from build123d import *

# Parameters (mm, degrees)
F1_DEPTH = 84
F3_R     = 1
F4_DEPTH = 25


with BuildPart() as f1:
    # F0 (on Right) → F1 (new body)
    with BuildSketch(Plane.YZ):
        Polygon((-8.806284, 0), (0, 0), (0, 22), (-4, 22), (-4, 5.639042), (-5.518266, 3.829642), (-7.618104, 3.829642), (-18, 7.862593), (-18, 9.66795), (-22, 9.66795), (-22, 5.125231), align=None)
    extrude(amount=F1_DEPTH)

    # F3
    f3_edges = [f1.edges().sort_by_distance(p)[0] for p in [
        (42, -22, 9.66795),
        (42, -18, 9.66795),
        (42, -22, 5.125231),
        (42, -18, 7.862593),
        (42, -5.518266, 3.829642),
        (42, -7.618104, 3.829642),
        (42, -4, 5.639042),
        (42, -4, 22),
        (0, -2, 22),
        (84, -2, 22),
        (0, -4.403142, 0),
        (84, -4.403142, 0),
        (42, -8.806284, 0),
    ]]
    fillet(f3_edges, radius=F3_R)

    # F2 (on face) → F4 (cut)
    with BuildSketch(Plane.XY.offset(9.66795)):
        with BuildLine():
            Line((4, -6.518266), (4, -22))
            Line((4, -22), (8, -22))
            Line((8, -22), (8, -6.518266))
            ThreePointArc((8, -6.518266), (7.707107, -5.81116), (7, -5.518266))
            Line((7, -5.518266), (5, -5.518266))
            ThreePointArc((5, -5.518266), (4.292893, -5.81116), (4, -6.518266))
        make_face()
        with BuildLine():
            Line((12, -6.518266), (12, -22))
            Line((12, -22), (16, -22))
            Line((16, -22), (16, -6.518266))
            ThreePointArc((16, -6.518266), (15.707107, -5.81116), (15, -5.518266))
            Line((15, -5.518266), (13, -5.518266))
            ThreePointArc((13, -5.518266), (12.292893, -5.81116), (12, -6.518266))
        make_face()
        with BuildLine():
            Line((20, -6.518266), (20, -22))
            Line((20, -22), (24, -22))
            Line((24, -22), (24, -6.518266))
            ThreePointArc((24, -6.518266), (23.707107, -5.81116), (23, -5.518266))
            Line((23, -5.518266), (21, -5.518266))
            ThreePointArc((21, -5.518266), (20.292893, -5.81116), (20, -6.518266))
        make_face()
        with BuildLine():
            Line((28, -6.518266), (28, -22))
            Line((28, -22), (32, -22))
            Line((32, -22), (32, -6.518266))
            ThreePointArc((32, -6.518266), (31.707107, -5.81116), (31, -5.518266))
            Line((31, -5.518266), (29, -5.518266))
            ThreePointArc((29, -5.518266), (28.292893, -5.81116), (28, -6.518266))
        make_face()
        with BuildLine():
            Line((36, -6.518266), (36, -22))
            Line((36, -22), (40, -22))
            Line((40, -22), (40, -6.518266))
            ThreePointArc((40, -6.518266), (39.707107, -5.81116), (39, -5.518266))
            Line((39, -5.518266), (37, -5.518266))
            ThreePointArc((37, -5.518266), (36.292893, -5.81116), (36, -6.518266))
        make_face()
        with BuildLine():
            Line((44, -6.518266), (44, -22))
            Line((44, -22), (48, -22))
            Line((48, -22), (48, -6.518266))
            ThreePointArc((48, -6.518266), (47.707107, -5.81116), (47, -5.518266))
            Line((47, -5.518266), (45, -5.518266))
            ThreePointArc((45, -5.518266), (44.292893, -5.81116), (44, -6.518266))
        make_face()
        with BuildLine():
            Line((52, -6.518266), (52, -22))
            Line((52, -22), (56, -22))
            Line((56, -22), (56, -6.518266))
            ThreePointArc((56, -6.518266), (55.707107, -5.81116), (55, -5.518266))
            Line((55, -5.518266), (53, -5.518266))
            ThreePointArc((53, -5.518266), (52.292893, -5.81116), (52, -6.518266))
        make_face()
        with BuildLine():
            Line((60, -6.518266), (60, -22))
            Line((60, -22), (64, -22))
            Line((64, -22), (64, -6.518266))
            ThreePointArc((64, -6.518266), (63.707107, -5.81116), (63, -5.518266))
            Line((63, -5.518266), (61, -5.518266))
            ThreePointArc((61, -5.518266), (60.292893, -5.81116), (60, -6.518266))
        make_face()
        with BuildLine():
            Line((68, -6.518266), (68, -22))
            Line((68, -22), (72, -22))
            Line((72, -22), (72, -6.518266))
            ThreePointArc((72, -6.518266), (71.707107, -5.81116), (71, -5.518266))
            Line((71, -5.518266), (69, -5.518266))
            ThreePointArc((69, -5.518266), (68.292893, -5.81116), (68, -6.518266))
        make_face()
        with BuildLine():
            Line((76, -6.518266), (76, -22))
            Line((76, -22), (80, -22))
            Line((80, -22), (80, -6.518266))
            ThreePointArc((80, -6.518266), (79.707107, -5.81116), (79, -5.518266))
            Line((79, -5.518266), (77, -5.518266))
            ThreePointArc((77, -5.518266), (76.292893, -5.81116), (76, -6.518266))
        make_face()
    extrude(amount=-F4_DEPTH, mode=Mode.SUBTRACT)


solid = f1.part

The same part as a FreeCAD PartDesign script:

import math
import FreeCAD as App
import Part
import Sketcher
from FreeCAD import Vector
Q = App.Units.Quantity


def edges_at(feature, points):
    """Names of the edges that pass closest to the given points."""
    edges = feature.Shape.Edges
    near = lambda p: min(range(len(edges)), key=lambda i: edges[i].distToShape(Part.Vertex(*p))[0])
    return sorted({f"Edge{near(p) + 1}" for p in points})

doc = App.newDocument("Part")
body = doc.addObject("PartDesign::Body", "Body")

sketch1 = body.newObject("Sketcher::SketchObject", "Sketch")
sketch1.AttachmentSupport = (doc.getObject("YZ_Plane"), [""])
sketch1.MapMode = "FlatFace"
sketch1.addGeometry([
    Part.LineSegment(Vector(-8.8, 0, 0), Vector(0, 0, 0)),
    Part.LineSegment(Vector(0, 0, 0), Vector(0, 22, 0)),
    Part.LineSegment(Vector(0, 22, 0), Vector(-4, 22, 0)),
    Part.LineSegment(Vector(-4, 22, 0), Vector(-4, 5.6, 0)),
    Part.LineSegment(Vector(-4, 5.6, 0), Vector(-5.5, 3.8, 0)),
    Part.LineSegment(Vector(-5.5, 3.8, 0), Vector(-7.6, 3.8, 0)),
    Part.LineSegment(Vector(-7.6, 3.8, 0), Vector(-18, 7.9, 0)),
    Part.LineSegment(Vector(-18, 7.9, 0), Vector(-18, 9.7, 0)),
    Part.LineSegment(Vector(-18, 9.7, 0), Vector(-22, 9.7, 0)),
    Part.LineSegment(Vector(-22, 9.7, 0), Vector(-22, 5.1, 0)),
    Part.LineSegment(Vector(-22, 5.1, 0), Vector(-8.8, 0, 0)),
], False)
sketch1.addConstraint([
    Sketcher.Constraint("Coincident", 0, 2, 1, 1),
    Sketcher.Constraint("Coincident", 1, 2, 2, 1),
    Sketcher.Constraint("Coincident", 2, 2, 3, 1),
    Sketcher.Constraint("Coincident", 3, 2, 4, 1),
    Sketcher.Constraint("Coincident", 4, 2, 5, 1),
    Sketcher.Constraint("Coincident", 5, 2, 6, 1),
    Sketcher.Constraint("Coincident", 6, 2, 7, 1),
    Sketcher.Constraint("Coincident", 7, 2, 8, 1),
    Sketcher.Constraint("Coincident", 8, 2, 9, 1),
    Sketcher.Constraint("Coincident", 9, 2, 10, 1),
    Sketcher.Constraint("Coincident", 10, 2, 0, 1),
    Sketcher.Constraint("Horizontal", 0),
    Sketcher.Constraint("Vertical", 1),
    Sketcher.Constraint("Horizontal", 2),
    Sketcher.Constraint("Vertical", 3),
    Sketcher.Constraint("Horizontal", 5),
    Sketcher.Constraint("Vertical", 7),
    Sketcher.Constraint("Horizontal", 8),
    Sketcher.Constraint("Vertical", 9),
    Sketcher.Constraint("Coincident", 0, 2, -1, 1),
    Sketcher.Constraint("Parallel", 6, 10),
    Sketcher.Constraint("Equal", 2, 8),
    Sketcher.Constraint("DistanceX", 2, 2, 2, 1, Q("4 mm")),
    Sketcher.Constraint("DistanceY", 1, 1, 1, 2, Q("22 mm")),
    Sketcher.Constraint("Angle", 4, Q("-129.999984 deg")),
    Sketcher.Constraint("DistanceX", 6, 2, -1, 1, Q("18 mm")),
    Sketcher.Constraint("DistanceX", 5, 2, 5, 1, Q("2.099838 mm")),
    Sketcher.Constraint("DistanceY", 3, 2, 3, 1, Q("16.360958 mm")),
    Sketcher.Constraint("DistanceY", 9, 2, 9, 1, Q("4.542719 mm")),
    Sketcher.Constraint("DistanceY", 4, 2, 3, 2, Q("1.8094 mm")),
    Sketcher.Constraint("DistanceX", 0, 1, 0, 2, Q("8.806284 mm")),
    Sketcher.Constraint("DistanceY", 7, 1, 7, 2, Q("1.805357 mm")),
])
pad1 = body.newObject("PartDesign::Pad", "Pad")
pad1.Profile = sketch1
pad1.Length = 84
doc.recompute()

fillet = body.newObject("PartDesign::Fillet", "Fillet")
fillet.Base = (pad1, edges_at(pad1, [
    (42, -22, 9.668),
    (42, -18, 9.668),
    (42, -22, 5.125),
    (42, -18, 7.863),
    (42, -5.518, 3.83),
    (42, -7.618, 3.83),
    (42, -4, 5.639),
    (42, -4, 22),
    (0, -2, 22),
    (84, -2, 22),
    (0, -4.403, 0),
    (84, -4.403, 0),
    (42, -8.806, 0),
]))
fillet.Radius = 1

sketch2 = body.newObject("Sketcher::SketchObject", "Sketch001")
sketch2.AttachmentSupport = (doc.getObject("XY_Plane"), [""])
sketch2.MapMode = "FlatFace"
sketch2.AttachmentOffset = App.Placement(Vector(0, 0, 9.66795), App.Rotation())
sketch2.addGeometry([
    Part.LineSegment(Vector(4, -6.5, 0), Vector(4, -22, 0)),
    Part.LineSegment(Vector(4, -22, 0), Vector(8, -22, 0)),
    Part.LineSegment(Vector(8, -22, 0), Vector(8, -6.5, 0)),
    Part.ArcOfCircle(Part.Circle(Vector(7, -6.5, 0), Vector(0, 0, 1), 1), math.radians(0), math.radians(90)),
    Part.LineSegment(Vector(7, -5.5, 0), Vector(5, -5.5, 0)),
    Part.ArcOfCircle(Part.Circle(Vector(5, -6.5, 0), Vector(0, 0, 1), 1), math.radians(90), math.radians(180)),
    Part.LineSegment(Vector(12, -6.5, 0), Vector(12, -22, 0)),
    Part.LineSegment(Vector(12, -22, 0), Vector(16, -22, 0)),
    Part.LineSegment(Vector(16, -22, 0), Vector(16, -6.5, 0)),
    Part.ArcOfCircle(Part.Circle(Vector(15, -6.5, 0), Vector(0, 0, 1), 1), math.radians(0), math.radians(90)),
    Part.LineSegment(Vector(15, -5.5, 0), Vector(13, -5.5, 0)),
    Part.ArcOfCircle(Part.Circle(Vector(13, -6.5, 0), Vector(0, 0, 1), 1), math.radians(90), math.radians(180)),
    Part.LineSegment(Vector(20, -6.5, 0), Vector(20, -22, 0)),
    Part.LineSegment(Vector(20, -22, 0), Vector(24, -22, 0)),
    Part.LineSegment(Vector(24, -22, 0), Vector(24, -6.5, 0)),
    Part.ArcOfCircle(Part.Circle(Vector(23, -6.5, 0), Vector(0, 0, 1), 1), math.radians(0), math.radians(90)),
    Part.LineSegment(Vector(23, -5.5, 0), Vector(21, -5.5, 0)),
    Part.ArcOfCircle(Part.Circle(Vector(21, -6.5, 0), Vector(0, 0, 1), 1), math.radians(90), math.radians(180)),
    Part.LineSegment(Vector(28, -6.5, 0), Vector(28, -22, 0)),
    Part.LineSegment(Vector(28, -22, 0), Vector(32, -22, 0)),
    Part.LineSegment(Vector(32, -22, 0), Vector(32, -6.5, 0)),
    Part.ArcOfCircle(Part.Circle(Vector(31, -6.5, 0), Vector(0, 0, 1), 1), math.radians(0), math.radians(90)),
    Part.LineSegment(Vector(31, -5.5, 0), Vector(29, -5.5, 0)),
    Part.ArcOfCircle(Part.Circle(Vector(29, -6.5, 0), Vector(0, 0, 1), 1), math.radians(90), math.radians(180)),
    Part.LineSegment(Vector(36, -6.5, 0), Vector(36, -22, 0)),
    Part.LineSegment(Vector(36, -22, 0), Vector(40, -22, 0)),
    Part.LineSegment(Vector(40, -22, 0), Vector(40, -6.5, 0)),
    Part.ArcOfCircle(Part.Circle(Vector(39, -6.5, 0), Vector(0, 0, 1), 1), math.radians(0), math.radians(90)),
    Part.LineSegment(Vector(39, -5.5, 0), Vector(37, -5.5, 0)),
    Part.ArcOfCircle(Part.Circle(Vector(37, -6.5, 0), Vector(0, 0, 1), 1), math.radians(90), math.radians(180)),
    Part.LineSegment(Vector(44, -6.5, 0), Vector(44, -22, 0)),
    Part.LineSegment(Vector(44, -22, 0), Vector(48, -22, 0)),
    Part.LineSegment(Vector(48, -22, 0), Vector(48, -6.5, 0)),
    Part.ArcOfCircle(Part.Circle(Vector(47, -6.5, 0), Vector(0, 0, 1), 1), math.radians(0), math.radians(90)),
    Part.LineSegment(Vector(47, -5.5, 0), Vector(45, -5.5, 0)),
    Part.ArcOfCircle(Part.Circle(Vector(45, -6.5, 0), Vector(0, 0, 1), 1), math.radians(90), math.radians(180)),
    Part.LineSegment(Vector(52, -6.5, 0), Vector(52, -22, 0)),
    Part.LineSegment(Vector(52, -22, 0), Vector(56, -22, 0)),
    Part.LineSegment(Vector(56, -22, 0), Vector(56, -6.5, 0)),
    Part.ArcOfCircle(Part.Circle(Vector(55, -6.5, 0), Vector(0, 0, 1), 1), math.radians(0), math.radians(90)),
    Part.LineSegment(Vector(55, -5.5, 0), Vector(53, -5.5, 0)),
    Part.ArcOfCircle(Part.Circle(Vector(53, -6.5, 0), Vector(0, 0, 1), 1), math.radians(90), math.radians(180)),
    Part.LineSegment(Vector(60, -6.5, 0), Vector(60, -22, 0)),
    Part.LineSegment(Vector(60, -22, 0), Vector(64, -22, 0)),
    Part.LineSegment(Vector(64, -22, 0), Vector(64, -6.5, 0)),
    Part.ArcOfCircle(Part.Circle(Vector(63, -6.5, 0), Vector(0, 0, 1), 1), math.radians(0), math.radians(90)),
    Part.LineSegment(Vector(63, -5.5, 0), Vector(61, -5.5, 0)),
    Part.ArcOfCircle(Part.Circle(Vector(61, -6.5, 0), Vector(0, 0, 1), 1), math.radians(90), math.radians(180)),
    Part.LineSegment(Vector(68, -6.5, 0), Vector(68, -22, 0)),
    Part.LineSegment(Vector(68, -22, 0), Vector(72, -22, 0)),
    Part.LineSegment(Vector(72, -22, 0), Vector(72, -6.5, 0)),
    Part.ArcOfCircle(Part.Circle(Vector(71, -6.5, 0), Vector(0, 0, 1), 1), math.radians(0), math.radians(90)),
    Part.LineSegment(Vector(71, -5.5, 0), Vector(69, -5.5, 0)),
    Part.ArcOfCircle(Part.Circle(Vector(69, -6.5, 0), Vector(0, 0, 1), 1), math.radians(90), math.radians(180)),
    Part.LineSegment(Vector(76, -6.5, 0), Vector(76, -22, 0)),
    Part.LineSegment(Vector(76, -22, 0), Vector(80, -22, 0)),
    Part.LineSegment(Vector(80, -22, 0), Vector(80, -6.5, 0)),
    Part.ArcOfCircle(Part.Circle(Vector(79, -6.5, 0), Vector(0, 0, 1), 1), math.radians(0), math.radians(90)),
    Part.LineSegment(Vector(79, -5.5, 0), Vector(77, -5.5, 0)),
    Part.ArcOfCircle(Part.Circle(Vector(77, -6.5, 0), Vector(0, 0, 1), 1), math.radians(90), math.radians(180)),
], False)
sketch2.addConstraint([
    Sketcher.Constraint("Coincident", 0, 2, 1, 1),
    Sketcher.Constraint("Coincident", 1, 2, 2, 1),
    Sketcher.Constraint("Tangent", 2, 2, 3, 1),
    Sketcher.Constraint("Tangent", 3, 2, 4, 1),
    Sketcher.Constraint("Tangent", 4, 2, 5, 1),
    Sketcher.Constraint("Tangent", 5, 2, 0, 1),
    Sketcher.Constraint("Coincident", 6, 2, 7, 1),
    Sketcher.Constraint("Coincident", 7, 2, 8, 1),
    Sketcher.Constraint("Tangent", 8, 2, 9, 1),
    Sketcher.Constraint("Tangent", 9, 2, 10, 1),
    Sketcher.Constraint("Tangent", 10, 2, 11, 1),
    Sketcher.Constraint("Tangent", 11, 2, 6, 1),
    Sketcher.Constraint("Coincident", 12, 2, 13, 1),
    Sketcher.Constraint("Coincident", 13, 2, 14, 1),
    Sketcher.Constraint("Tangent", 14, 2, 15, 1),
    Sketcher.Constraint("Tangent", 15, 2, 16, 1),
    Sketcher.Constraint("Tangent", 16, 2, 17, 1),
    Sketcher.Constraint("Tangent", 17, 2, 12, 1),
    Sketcher.Constraint("Coincident", 18, 2, 19, 1),
    Sketcher.Constraint("Coincident", 19, 2, 20, 1),
    Sketcher.Constraint("Tangent", 20, 2, 21, 1),
    Sketcher.Constraint("Tangent", 21, 2, 22, 1),
    Sketcher.Constraint("Tangent", 22, 2, 23, 1),
    Sketcher.Constraint("Tangent", 23, 2, 18, 1),
    Sketcher.Constraint("Coincident", 24, 2, 25, 1),
    Sketcher.Constraint("Coincident", 25, 2, 26, 1),
    Sketcher.Constraint("Tangent", 26, 2, 27, 1),
    Sketcher.Constraint("Tangent", 27, 2, 28, 1),
    Sketcher.Constraint("Tangent", 28, 2, 29, 1),
    Sketcher.Constraint("Tangent", 29, 2, 24, 1),
    Sketcher.Constraint("Coincident", 30, 2, 31, 1),
    Sketcher.Constraint("Coincident", 31, 2, 32, 1),
    Sketcher.Constraint("Tangent", 32, 2, 33, 1),
    Sketcher.Constraint("Tangent", 33, 2, 34, 1),
    Sketcher.Constraint("Tangent", 34, 2, 35, 1),
    Sketcher.Constraint("Tangent", 35, 2, 30, 1),
    Sketcher.Constraint("Coincident", 36, 2, 37, 1),
    Sketcher.Constraint("Coincident", 37, 2, 38, 1),
    Sketcher.Constraint("Tangent", 38, 2, 39, 1),
    Sketcher.Constraint("Tangent", 39, 2, 40, 1),
    Sketcher.Constraint("Tangent", 40, 2, 41, 1),
    Sketcher.Constraint("Tangent", 41, 2, 36, 1),
    Sketcher.Constraint("Coincident", 42, 2, 43, 1),
    Sketcher.Constraint("Coincident", 43, 2, 44, 1),
    Sketcher.Constraint("Tangent", 44, 2, 45, 1),
    Sketcher.Constraint("Tangent", 45, 2, 46, 1),
    Sketcher.Constraint("Tangent", 46, 2, 47, 1),
    Sketcher.Constraint("Tangent", 47, 2, 42, 1),
    Sketcher.Constraint("Coincident", 48, 2, 49, 1),
    Sketcher.Constraint("Coincident", 49, 2, 50, 1),
    Sketcher.Constraint("Tangent", 50, 2, 51, 1),
    Sketcher.Constraint("Tangent", 51, 2, 52, 1),
    Sketcher.Constraint("Tangent", 52, 2, 53, 1),
    Sketcher.Constraint("Tangent", 53, 2, 48, 1),
    Sketcher.Constraint("Coincident", 54, 2, 55, 1),
    Sketcher.Constraint("Coincident", 55, 2, 56, 1),
    Sketcher.Constraint("Tangent", 56, 2, 57, 1),
    Sketcher.Constraint("Tangent", 57, 2, 58, 1),
    Sketcher.Constraint("Tangent", 58, 2, 59, 1),
    Sketcher.Constraint("Tangent", 59, 2, 54, 1),
    Sketcher.Constraint("Vertical", 0),
    Sketcher.Constraint("Horizontal", 1),
    Sketcher.Constraint("Vertical", 2),
    Sketcher.Constraint("Horizontal", 4),
    Sketcher.Constraint("Vertical", 6),
    Sketcher.Constraint("Horizontal", 7),
    Sketcher.Constraint("Vertical", 8),
    Sketcher.Constraint("Horizontal", 10),
    Sketcher.Constraint("Vertical", 12),
    Sketcher.Constraint("Horizontal", 13),
    Sketcher.Constraint("Vertical", 14),
    Sketcher.Constraint("Horizontal", 16),
    Sketcher.Constraint("Vertical", 18),
    Sketcher.Constraint("Horizontal", 19),
    Sketcher.Constraint("Vertical", 20),
    Sketcher.Constraint("Horizontal", 22),
    Sketcher.Constraint("Vertical", 24),
    Sketcher.Constraint("Horizontal", 25),
    Sketcher.Constraint("Vertical", 26),
    Sketcher.Constraint("Horizontal", 28),
    Sketcher.Constraint("Vertical", 30),
    Sketcher.Constraint("Horizontal", 31),
    Sketcher.Constraint("Vertical", 32),
    Sketcher.Constraint("Horizontal", 34),
    Sketcher.Constraint("Vertical", 36),
    Sketcher.Constraint("Horizontal", 37),
    Sketcher.Constraint("Vertical", 38),
    Sketcher.Constraint("Horizontal", 40),
    Sketcher.Constraint("Vertical", 42),
    Sketcher.Constraint("Horizontal", 43),
    Sketcher.Constraint("Vertical", 44),
    Sketcher.Constraint("Horizontal", 46),
    Sketcher.Constraint("Vertical", 48),
    Sketcher.Constraint("Horizontal", 49),
    Sketcher.Constraint("Vertical", 50),
    Sketcher.Constraint("Horizontal", 52),
    Sketcher.Constraint("Vertical", 54),
    Sketcher.Constraint("Horizontal", 55),
    Sketcher.Constraint("Vertical", 56),
    Sketcher.Constraint("Horizontal", 58),
    Sketcher.Constraint("Equal", 3, 5),
    Sketcher.Constraint("Equal", 5, 9),
    Sketcher.Constraint("Equal", 9, 11),
    Sketcher.Constraint("Equal", 11, 15),
    Sketcher.Constraint("Equal", 15, 17),
    Sketcher.Constraint("Equal", 17, 21),
    Sketcher.Constraint("Equal", 21, 23),
    Sketcher.Constraint("Equal", 23, 27),
    Sketcher.Constraint("Equal", 27, 29),
    Sketcher.Constraint("Equal", 29, 33),
    Sketcher.Constraint("Equal", 33, 35),
    Sketcher.Constraint("Equal", 35, 39),
    Sketcher.Constraint("Equal", 39, 41),
    Sketcher.Constraint("Equal", 41, 45),
    Sketcher.Constraint("Equal", 45, 47),
    Sketcher.Constraint("Equal", 47, 51),
    Sketcher.Constraint("Equal", 51, 53),
    Sketcher.Constraint("Equal", 53, 57),
    Sketcher.Constraint("Equal", 57, 59),
    Sketcher.Constraint("Horizontal", 5, 3, 9, 3),
    Sketcher.Constraint("Horizontal", 11, 3, 15, 3),
    Sketcher.Constraint("Horizontal", 17, 3, 21, 3),
    Sketcher.Constraint("Horizontal", 23, 3, 27, 3),
    Sketcher.Constraint("Horizontal", 29, 3, 33, 3),
    Sketcher.Constraint("Horizontal", 35, 3, 39, 3),
    Sketcher.Constraint("Horizontal", 41, 3, 45, 3),
    Sketcher.Constraint("Horizontal", 47, 3, 51, 3),
    Sketcher.Constraint("Horizontal", 53, 3, 57, 3),
    Sketcher.Constraint("Horizontal", 1, 2, 6, 2),
    Sketcher.Constraint("Horizontal", 7, 2, 12, 2),
    Sketcher.Constraint("Horizontal", 13, 2, 18, 2),
    Sketcher.Constraint("Horizontal", 19, 2, 24, 2),
    Sketcher.Constraint("Horizontal", 25, 2, 30, 2),
    Sketcher.Constraint("Horizontal", 31, 2, 36, 2),
    Sketcher.Constraint("Horizontal", 37, 2, 42, 2),
    Sketcher.Constraint("Horizontal", 43, 2, 48, 2),
    Sketcher.Constraint("Horizontal", 49, 2, 54, 2),
    Sketcher.Constraint("Equal", 1, 7),
    Sketcher.Constraint("Equal", 7, 13),
    Sketcher.Constraint("Equal", 13, 19),
    Sketcher.Constraint("Equal", 19, 25),
    Sketcher.Constraint("Equal", 25, 31),
    Sketcher.Constraint("Equal", 31, 37),
    Sketcher.Constraint("Equal", 37, 43),
    Sketcher.Constraint("Equal", 43, 49),
    Sketcher.Constraint("Equal", 49, 55),
    Sketcher.Constraint("Radius", 3, Q("1.000001 mm")),
    Sketcher.Constraint("DistanceX", 1, 1, 1, 2, Q("4 mm")),
    Sketcher.Constraint("DistanceX", -1, 1, 3, 3, Q("6.999999 mm")),
    Sketcher.Constraint("DistanceX", -1, 1, 9, 3, Q("14.999999 mm")),
    Sketcher.Constraint("DistanceX", -1, 1, 15, 3, Q("22.999999 mm")),
    Sketcher.Constraint("DistanceX", -1, 1, 21, 3, Q("30.999999 mm")),
    Sketcher.Constraint("DistanceX", -1, 1, 27, 3, Q("38.999999 mm")),
    Sketcher.Constraint("DistanceX", -1, 1, 33, 3, Q("46.999999 mm")),
    Sketcher.Constraint("DistanceX", -1, 1, 39, 3, Q("54.999999 mm")),
    Sketcher.Constraint("DistanceX", -1, 1, 45, 3, Q("62.999999 mm")),
    Sketcher.Constraint("DistanceX", -1, 1, 51, 3, Q("70.999999 mm")),
    Sketcher.Constraint("DistanceX", -1, 1, 57, 3, Q("78.999999 mm")),
    Sketcher.Constraint("DistanceY", 0, 2, -1, 1, Q("22 mm")),
    Sketcher.Constraint("DistanceY", 0, 2, 0, 1, Q("15.481734 mm")),
])
pocket1 = body.newObject("PartDesign::Pocket", "Pocket")
pocket1.Profile = sketch2
pocket1.Length = 25

doc.recompute()
